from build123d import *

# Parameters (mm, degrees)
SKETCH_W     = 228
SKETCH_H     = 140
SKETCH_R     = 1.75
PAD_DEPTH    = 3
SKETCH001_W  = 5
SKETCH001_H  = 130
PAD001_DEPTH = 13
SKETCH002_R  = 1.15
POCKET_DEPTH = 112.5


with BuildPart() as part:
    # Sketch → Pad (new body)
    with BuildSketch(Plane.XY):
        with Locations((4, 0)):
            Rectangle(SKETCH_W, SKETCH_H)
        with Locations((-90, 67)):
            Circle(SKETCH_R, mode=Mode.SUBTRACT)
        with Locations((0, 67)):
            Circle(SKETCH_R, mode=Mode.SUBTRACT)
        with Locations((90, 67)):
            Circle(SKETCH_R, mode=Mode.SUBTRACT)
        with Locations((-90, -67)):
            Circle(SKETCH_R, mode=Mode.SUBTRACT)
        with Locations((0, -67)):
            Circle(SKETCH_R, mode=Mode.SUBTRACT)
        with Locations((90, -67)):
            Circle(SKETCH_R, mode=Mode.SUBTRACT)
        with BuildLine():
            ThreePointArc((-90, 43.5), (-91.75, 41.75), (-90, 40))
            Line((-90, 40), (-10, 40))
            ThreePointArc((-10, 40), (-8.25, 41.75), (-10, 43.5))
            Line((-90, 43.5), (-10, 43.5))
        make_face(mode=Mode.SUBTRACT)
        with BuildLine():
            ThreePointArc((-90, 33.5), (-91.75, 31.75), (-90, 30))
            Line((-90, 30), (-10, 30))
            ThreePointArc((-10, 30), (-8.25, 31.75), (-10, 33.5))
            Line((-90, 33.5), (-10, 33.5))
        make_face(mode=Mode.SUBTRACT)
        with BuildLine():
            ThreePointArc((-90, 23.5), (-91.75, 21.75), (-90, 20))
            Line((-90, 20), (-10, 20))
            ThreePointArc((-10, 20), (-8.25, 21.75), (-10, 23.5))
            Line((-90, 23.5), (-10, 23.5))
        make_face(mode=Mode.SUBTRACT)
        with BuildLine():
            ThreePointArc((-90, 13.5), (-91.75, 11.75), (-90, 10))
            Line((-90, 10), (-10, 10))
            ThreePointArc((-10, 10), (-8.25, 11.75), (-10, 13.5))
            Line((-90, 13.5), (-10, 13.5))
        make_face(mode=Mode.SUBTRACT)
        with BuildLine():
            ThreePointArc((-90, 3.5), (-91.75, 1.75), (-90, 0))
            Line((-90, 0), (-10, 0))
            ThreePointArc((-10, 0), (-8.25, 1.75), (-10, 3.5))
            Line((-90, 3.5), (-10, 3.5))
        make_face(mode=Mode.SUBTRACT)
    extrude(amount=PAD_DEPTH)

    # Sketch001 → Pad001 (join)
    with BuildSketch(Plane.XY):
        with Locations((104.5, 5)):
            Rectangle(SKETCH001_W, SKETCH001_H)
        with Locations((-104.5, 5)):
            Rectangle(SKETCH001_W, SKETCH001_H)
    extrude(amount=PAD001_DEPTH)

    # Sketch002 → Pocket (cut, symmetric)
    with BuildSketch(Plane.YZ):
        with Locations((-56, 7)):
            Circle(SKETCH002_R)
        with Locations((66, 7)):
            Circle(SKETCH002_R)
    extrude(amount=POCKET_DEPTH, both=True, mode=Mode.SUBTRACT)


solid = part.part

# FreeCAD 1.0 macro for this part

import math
import FreeCAD as App
import Part
import Sketcher
from FreeCAD import Vector
Q = App.Units.Quantity

doc = App.newDocument("Part")
body = doc.addObject("PartDesign::Body", "Body")

sketch1 = doc.addObject("Sketcher::SketchObject", "Sketch")
body.addObject(sketch1)
sketch1.AttachmentSupport = (doc.XY_Plane, [""])
sketch1.MapMode = "FlatFace"
sketch1.addGeometry(Part.LineSegment(Vector(-110, 70, 0), Vector(-110, -70, 0)), False)
sketch1.addGeometry(Part.LineSegment(Vector(-110, -70, 0), Vector(118, -70, 0)), False)
sketch1.addGeometry(Part.LineSegment(Vector(118, -70, 0), Vector(118, 70, 0)), False)
sketch1.addGeometry(Part.LineSegment(Vector(118, 70, 0), Vector(-110, 70, 0)), False)
sketch1.addGeometry(Part.Circle(Vector(-90, -67, 0), Vector(0, 0, 1), 1.8), False)
sketch1.addGeometry(Part.Circle(Vector(0, -67, 0), Vector(0, 0, 1), 1.8), False)
sketch1.addGeometry(Part.Circle(Vector(90, -67, 0), Vector(0, 0, 1), 1.8), False)
sketch1.addGeometry(Part.ArcOfCircle(Part.Circle(Vector(-90, 1.8, 0), Vector(0, 0, 1), 1.8), math.radians(90), math.radians(270)), False)
sketch1.addGeometry(Part.LineSegment(Vector(-90, 3.5, 0), Vector(-10, 3.5, 0)), False)
sketch1.addGeometry(Part.ArcOfCircle(Part.Circle(Vector(-10, 1.8, 0), Vector(0, 0, 1), 1.8), math.radians(-90), math.radians(90)), False)
sketch1.addGeometry(Part.LineSegment(Vector(-10, 0, 0), Vector(-90, 0, 0)), False)
sketch1.addGeometry(Part.ArcOfCircle(Part.Circle(Vector(-90, 11.8, 0), Vector(0, 0, 1), 1.8), math.radians(90), math.radians(270)), False)
sketch1.addGeometry(Part.LineSegment(Vector(-90, 13.5, 0), Vector(-10, 13.5, 0)), False)
sketch1.addGeometry(Part.ArcOfCircle(Part.Circle(Vector(-10, 11.8, 0), Vector(0, 0, 1), 1.8), math.radians(-90), math.radians(90)), False)
sketch1.addGeometry(Part.LineSegment(Vector(-10, 10, 0), Vector(-90, 10, 0)), False)
sketch1.addGeometry(Part.ArcOfCircle(Part.Circle(Vector(-90, 21.8, 0), Vector(0, 0, 1), 1.8), math.radians(90), math.radians(270)), False)
sketch1.addGeometry(Part.LineSegment(Vector(-90, 23.5, 0), Vector(-10, 23.5, 0)), False)
sketch1.addGeometry(Part.ArcOfCircle(Part.Circle(Vector(-10, 21.8, 0), Vector(0, 0, 1), 1.8), math.radians(-90), math.radians(90)), False)
sketch1.addGeometry(Part.LineSegment(Vector(-10, 20, 0), Vector(-90, 20, 0)), False)
sketch1.addGeometry(Part.ArcOfCircle(Part.Circle(Vector(-90, 31.8, 0), Vector(0, 0, 1), 1.8), math.radians(90), math.radians(270)), False)
sketch1.addGeometry(Part.LineSegment(Vector(-90, 33.5, 0), Vector(-10, 33.5, 0)), False)
sketch1.addGeometry(Part.ArcOfCircle(Part.Circle(Vector(-10, 31.8, 0), Vector(0, 0, 1), 1.8), math.radians(-90), math.radians(90)), False)
sketch1.addGeometry(Part.LineSegment(Vector(-10, 30, 0), Vector(-90, 30, 0)), False)
sketch1.addGeometry(Part.ArcOfCircle(Part.Circle(Vector(-90, 41.8, 0), Vector(0, 0, 1), 1.8), math.radians(90), math.radians(270)), False)
sketch1.addGeometry(Part.LineSegment(Vector(-90, 43.5, 0), Vector(-10, 43.5, 0)), False)
sketch1.addGeometry(Part.ArcOfCircle(Part.Circle(Vector(-10, 41.8, 0), Vector(0, 0, 1), 1.8), math.radians(-90), math.radians(90)), False)
sketch1.addGeometry(Part.LineSegment(Vector(-10, 40, 0), Vector(-90, 40, 0)), False)
sketch1.addGeometry(Part.Circle(Vector(-90, 67, 0), Vector(0, 0, 1), 1.8), False)
sketch1.addGeometry(Part.Circle(Vector(0, 67, 0), Vector(0, 0, 1), 1.8), False)
sketch1.addGeometry(Part.Circle(Vector(90, 67, 0), Vector(0, 0, 1), 1.8), False)
sketch1.addConstraint(Sketcher.Constraint("Coincident", 0, 2, 1, 1))
sketch1.addConstraint(Sketcher.Constraint("Coincident", 1, 2, 2, 1))
sketch1.addConstraint(Sketcher.Constraint("Coincident", 2, 2, 3, 1))
sketch1.addConstraint(Sketcher.Constraint("Coincident", 3, 2, 0, 1))
sketch1.addConstraint(Sketcher.Constraint("Tangent", 7, 1, 8, 1))
sketch1.addConstraint(Sketcher.Constraint("Tangent", 8, 2, 9, 2))
sketch1.addConstraint(Sketcher.Constraint("Tangent", 9, 1, 10, 1))
sketch1.addConstraint(Sketcher.Constraint("Tangent", 10, 2, 7, 2))
sketch1.addConstraint(Sketcher.Constraint("Tangent", 11, 1, 12, 1))
sketch1.addConstraint(Sketcher.Constraint("Tangent", 12, 2, 13, 2))
sketch1.addConstraint(Sketcher.Constraint("Tangent", 13, 1, 14, 1))
sketch1.addConstraint(Sketcher.Constraint("Tangent", 14, 2, 11, 2))
sketch1.addConstraint(Sketcher.Constraint("Tangent", 15, 1, 16, 1))
sketch1.addConstraint(Sketcher.Constraint("Tangent", 16, 2, 17, 2))
sketch1.addConstraint(Sketcher.Constraint("Tangent", 17, 1, 18, 1))
sketch1.addConstraint(Sketcher.Constraint("Tangent", 18, 2, 15, 2))
sketch1.addConstraint(Sketcher.Constraint("Tangent", 19, 1, 20, 1))
sketch1.addConstraint(Sketcher.Constraint("Tangent", 20, 2, 21, 2))
sketch1.addConstraint(Sketcher.Constraint("Tangent", 21, 1, 22, 1))
sketch1.addConstraint(Sketcher.Constraint("Tangent", 22, 2, 19, 2))
sketch1.addConstraint(Sketcher.Constraint("Tangent", 23, 1, 24, 1))
sketch1.addConstraint(Sketcher.Constraint("Tangent", 24, 2, 25, 2))
sketch1.addConstraint(Sketcher.Constraint("Tangent", 25, 1, 26, 1))
sketch1.addConstraint(Sketcher.Constraint("Tangent", 26, 2, 23, 2))
sketch1.addConstraint(Sketcher.Constraint("Vertical", 0))
sketch1.addConstraint(Sketcher.Constraint("Horizontal", 1))
sketch1.addConstraint(Sketcher.Constraint("Vertical", 2))
sketch1.addConstraint(Sketcher.Constraint("Horizontal", 3))
sketch1.addConstraint(Sketcher.Constraint("Horizontal", 8))
sketch1.addConstraint(Sketcher.Constraint("Horizontal", 10))
sketch1.addConstraint(Sketcher.Constraint("Horizontal", 12))
sketch1.addConstraint(Sketcher.Constraint("Horizontal", 14))
sketch1.addConstraint(Sketcher.Constraint("Horizontal", 16))
sketch1.addConstraint(Sketcher.Constraint("Horizontal", 18))
sketch1.addConstraint(Sketcher.Constraint("Horizontal", 20))
sketch1.addConstraint(Sketcher.Constraint("Horizontal", 22))
sketch1.addConstraint(Sketcher.Constraint("Horizontal", 24))
sketch1.addConstraint(Sketcher.Constraint("Horizontal", 26))
sketch1.addConstraint(Sketcher.Constraint("Equal", 4, 5))
sketch1.addConstraint(Sketcher.Constraint("Equal", 5, 6))
sketch1.addConstraint(Sketcher.Constraint("Equal", 6, 7))
sketch1.addConstraint(Sketcher.Constraint("Equal", 9, 11))
sketch1.addConstraint(Sketcher.Constraint("Equal", 13, 15))
sketch1.addConstraint(Sketcher.Constraint("Equal", 17, 19))
sketch1.addConstraint(Sketcher.Constraint("Equal", 21, 23))
sketch1.addConstraint(Sketcher.Constraint("Equal", 25, 27))
sketch1.addConstraint(Sketcher.Constraint("Equal", 27, 28))
sketch1.addConstraint(Sketcher.Constraint("Equal", 28, 29))
sketch1.addConstraint(Sketcher.Constraint("Symmetric", 6, 3, 27, 3, -1, 1))
sketch1.addConstraint(Sketcher.Constraint("Symmetric", 5, 3, 28, 3, -1, 1))
sketch1.addConstraint(Sketcher.Constraint("Symmetric", 4, 3, 29, 3, -1, 1))
sketch1.addConstraint(Sketcher.Constraint("Symmetric", 4, 3, 6, 3, -2))
sketch1.addConstraint(Sketcher.Constraint("PointOnObject", 5, 3, -2))
sketch1.addConstraint(Sketcher.Constraint("PointOnObject", 9, 1, -1))
sketch1.addConstraint(Sketcher.Constraint("Horizontal", 4, 3, 5, 3))
sketch1.addConstraint(Sketcher.Constraint("Vertical", 4, 3, 7, 3))
sketch1.addConstraint(Sketcher.Constraint("Vertical", 7, 3, 11, 3))
sketch1.addConstraint(Sketcher.Constraint("Vertical", 9, 3, 13, 3))
sketch1.addConstraint(Sketcher.Constraint("Vertical", 11, 3, 15, 3))
sketch1.addConstraint(Sketcher.Constraint("Vertical", 13, 3, 17, 3))
sketch1.addConstraint(Sketcher.Constraint("Vertical", 15, 3, 19, 3))
sketch1.addConstraint(Sketcher.Constraint("Vertical", 17, 3, 21, 3))
sketch1.addConstraint(Sketcher.Constraint("Vertical", 19, 3, 23, 3))
sketch1.addConstraint(Sketcher.Constraint("Vertical", 21, 3, 25, 3))
sketch1.addConstraint(Sketcher.Constraint("Diameter", 4, Q("3.5 mm")))
sketch1.addConstraint(Sketcher.Constraint("DistanceX", 1, 1, 1, 2, Q("228 mm")))
sketch1.addConstraint(Sketcher.Constraint("DistanceX", 8, 1, 8, 2, Q("80 mm")))
sketch1.addConstraint(Sketcher.Constraint("DistanceY", 0, 2, 0, 1, Q("140 mm")))
sketch1.addConstraint(Sketcher.Constraint("DistanceX", 4, 3, -1, 1, Q("90 mm")))
sketch1.addConstraint(Sketcher.Constraint("DistanceY", 4, 3, -1, 1, Q("67 mm")))
sketch1.addConstraint(Sketcher.Constraint("DistanceX", 0, 2, -1, 1, Q("110 mm")))
sketch1.addConstraint(Sketcher.Constraint("DistanceY", 0, 2, -1, 1, Q("70 mm")))
sketch1.addConstraint(Sketcher.Constraint("DistanceY", -1, 1, 13, 1, Q("10 mm")))
sketch1.addConstraint(Sketcher.Constraint("DistanceY", -1, 1, 17, 1, Q("20 mm")))
sketch1.addConstraint(Sketcher.Constraint("DistanceY", -1, 1, 21, 1, Q("30 mm")))
sketch1.addConstraint(Sketcher.Constraint("DistanceY", -1, 1, 25, 1, Q("40 mm")))
pad1 = doc.addObject("PartDesign::Pad", "Pad")
body.addObject(pad1)
pad1.Profile = sketch1
pad1.Length = 3

sketch2 = doc.addObject("Sketcher::SketchObject", "Sketch001")
body.addObject(sketch2)
sketch2.AttachmentSupport = (doc.XY_Plane, [""])
sketch2.MapMode = "FlatFace"
sketch2.addGeometry(Part.LineSegment(Vector(102, 70, 0), Vector(102, -60, 0)), False)
sketch2.addGeometry(Part.LineSegment(Vector(102, -60, 0), Vector(107, -60, 0)), False)
sketch2.addGeometry(Part.LineSegment(Vector(107, -60, 0), Vector(107, 70, 0)), False)
sketch2.addGeometry(Part.LineSegment(Vector(107, 70, 0), Vector(102, 70, 0)), False)
sketch2.addGeometry(Part.LineSegment(Vector(-107, 70, 0), Vector(-107, -60, 0)), False)
sketch2.addGeometry(Part.LineSegment(Vector(-107, -60, 0), Vector(-102, -60, 0)), False)
sketch2.addGeometry(Part.LineSegment(Vector(-102, -60, 0), Vector(-102, 70, 0)), False)
sketch2.addGeometry(Part.LineSegment(Vector(-102, 70, 0), Vector(-107, 70, 0)), False)
sketch2.addConstraint(Sketcher.Constraint("Coincident", 0, 2, 1, 1))
sketch2.addConstraint(Sketcher.Constraint("Coincident", 1, 2, 2, 1))
sketch2.addConstraint(Sketcher.Constraint("Coincident", 2, 2, 3, 1))
sketch2.addConstraint(Sketcher.Constraint("Coincident", 3, 2, 0, 1))
sketch2.addConstraint(Sketcher.Constraint("Coincident", 4, 2, 5, 1))
sketch2.addConstraint(Sketcher.Constraint("Coincident", 5, 2, 6, 1))
sketch2.addConstraint(Sketcher.Constraint("Coincident", 6, 2, 7, 1))
sketch2.addConstraint(Sketcher.Constraint("Coincident", 7, 2, 4, 1))
sketch2.addConstraint(Sketcher.Constraint("Vertical", 0))
sketch2.addConstraint(Sketcher.Constraint("Horizontal", 1))
sketch2.addConstraint(Sketcher.Constraint("Vertical", 2))
sketch2.addConstraint(Sketcher.Constraint("Horizontal", 3))
sketch2.addConstraint(Sketcher.Constraint("Vertical", 4))
sketch2.addConstraint(Sketcher.Constraint("Horizontal", 5))
sketch2.addConstraint(Sketcher.Constraint("Vertical", 6))
sketch2.addConstraint(Sketcher.Constraint("Horizontal", 7))
sketch2.addConstraint(Sketcher.Constraint("Symmetric", 1, 2, 4, 2, -2))
sketch2.addConstraint(Sketcher.Constraint("Symmetric", 3, 2, 6, 2, -2))
sketch2.addConstraint(Sketcher.Constraint("DistanceX", 1, 1, 1, 2, Q("5 mm")))
sketch2.addConstraint(Sketcher.Constraint("DistanceY", 0, 2, 0, 1, Q("130 mm")))
sketch2.addConstraint(Sketcher.Constraint("DistanceX", -1, 1, 0, 2, Q("102 mm")))
sketch2.addConstraint(Sketcher.Constraint("DistanceY", 0, 2, -1, 1, Q("60 mm")))
pad2 = doc.addObject("PartDesign::Pad", "Pad001")
body.addObject(pad2)
pad2.Profile = sketch2
pad2.Length = 13

sketch3 = doc.addObject("Sketcher::SketchObject", "Sketch002")
body.addObject(sketch3)
sketch3.AttachmentSupport = (doc.YZ_Plane, [""])
sketch3.MapMode = "FlatFace"
sketch3.addGeometry(Part.Circle(Vector(-56, 7, 0), Vector(0, 0, 1), 1.1), False)
sketch3.addGeometry(Part.Circle(Vector(66, 7, 0), Vector(0, 0, 1), 1.1), False)
sketch3.addConstraint(Sketcher.Constraint("Equal", 0, 1))
sketch3.addConstraint(Sketcher.Constraint("Horizontal", 0, 3, 1, 3))
sketch3.addConstraint(Sketcher.Constraint("Diameter", 0, Q("2.3 mm")))
sketch3.addConstraint(Sketcher.Constraint("DistanceX", 0, 3, -1, 1, Q("56 mm")))
sketch3.addConstraint(Sketcher.Constraint("DistanceY", -1, 1, 0, 3, Q("7 mm")))
sketch3.addConstraint(Sketcher.Constraint("DistanceX", -1, 1, 1, 3, Q("66 mm")))
pocket1 = doc.addObject("PartDesign::Pocket", "Pocket")
body.addObject(pocket1)
pocket1.Profile = sketch3
pocket1.Length = 225
pocket1.Midplane = True

doc.recompute()
